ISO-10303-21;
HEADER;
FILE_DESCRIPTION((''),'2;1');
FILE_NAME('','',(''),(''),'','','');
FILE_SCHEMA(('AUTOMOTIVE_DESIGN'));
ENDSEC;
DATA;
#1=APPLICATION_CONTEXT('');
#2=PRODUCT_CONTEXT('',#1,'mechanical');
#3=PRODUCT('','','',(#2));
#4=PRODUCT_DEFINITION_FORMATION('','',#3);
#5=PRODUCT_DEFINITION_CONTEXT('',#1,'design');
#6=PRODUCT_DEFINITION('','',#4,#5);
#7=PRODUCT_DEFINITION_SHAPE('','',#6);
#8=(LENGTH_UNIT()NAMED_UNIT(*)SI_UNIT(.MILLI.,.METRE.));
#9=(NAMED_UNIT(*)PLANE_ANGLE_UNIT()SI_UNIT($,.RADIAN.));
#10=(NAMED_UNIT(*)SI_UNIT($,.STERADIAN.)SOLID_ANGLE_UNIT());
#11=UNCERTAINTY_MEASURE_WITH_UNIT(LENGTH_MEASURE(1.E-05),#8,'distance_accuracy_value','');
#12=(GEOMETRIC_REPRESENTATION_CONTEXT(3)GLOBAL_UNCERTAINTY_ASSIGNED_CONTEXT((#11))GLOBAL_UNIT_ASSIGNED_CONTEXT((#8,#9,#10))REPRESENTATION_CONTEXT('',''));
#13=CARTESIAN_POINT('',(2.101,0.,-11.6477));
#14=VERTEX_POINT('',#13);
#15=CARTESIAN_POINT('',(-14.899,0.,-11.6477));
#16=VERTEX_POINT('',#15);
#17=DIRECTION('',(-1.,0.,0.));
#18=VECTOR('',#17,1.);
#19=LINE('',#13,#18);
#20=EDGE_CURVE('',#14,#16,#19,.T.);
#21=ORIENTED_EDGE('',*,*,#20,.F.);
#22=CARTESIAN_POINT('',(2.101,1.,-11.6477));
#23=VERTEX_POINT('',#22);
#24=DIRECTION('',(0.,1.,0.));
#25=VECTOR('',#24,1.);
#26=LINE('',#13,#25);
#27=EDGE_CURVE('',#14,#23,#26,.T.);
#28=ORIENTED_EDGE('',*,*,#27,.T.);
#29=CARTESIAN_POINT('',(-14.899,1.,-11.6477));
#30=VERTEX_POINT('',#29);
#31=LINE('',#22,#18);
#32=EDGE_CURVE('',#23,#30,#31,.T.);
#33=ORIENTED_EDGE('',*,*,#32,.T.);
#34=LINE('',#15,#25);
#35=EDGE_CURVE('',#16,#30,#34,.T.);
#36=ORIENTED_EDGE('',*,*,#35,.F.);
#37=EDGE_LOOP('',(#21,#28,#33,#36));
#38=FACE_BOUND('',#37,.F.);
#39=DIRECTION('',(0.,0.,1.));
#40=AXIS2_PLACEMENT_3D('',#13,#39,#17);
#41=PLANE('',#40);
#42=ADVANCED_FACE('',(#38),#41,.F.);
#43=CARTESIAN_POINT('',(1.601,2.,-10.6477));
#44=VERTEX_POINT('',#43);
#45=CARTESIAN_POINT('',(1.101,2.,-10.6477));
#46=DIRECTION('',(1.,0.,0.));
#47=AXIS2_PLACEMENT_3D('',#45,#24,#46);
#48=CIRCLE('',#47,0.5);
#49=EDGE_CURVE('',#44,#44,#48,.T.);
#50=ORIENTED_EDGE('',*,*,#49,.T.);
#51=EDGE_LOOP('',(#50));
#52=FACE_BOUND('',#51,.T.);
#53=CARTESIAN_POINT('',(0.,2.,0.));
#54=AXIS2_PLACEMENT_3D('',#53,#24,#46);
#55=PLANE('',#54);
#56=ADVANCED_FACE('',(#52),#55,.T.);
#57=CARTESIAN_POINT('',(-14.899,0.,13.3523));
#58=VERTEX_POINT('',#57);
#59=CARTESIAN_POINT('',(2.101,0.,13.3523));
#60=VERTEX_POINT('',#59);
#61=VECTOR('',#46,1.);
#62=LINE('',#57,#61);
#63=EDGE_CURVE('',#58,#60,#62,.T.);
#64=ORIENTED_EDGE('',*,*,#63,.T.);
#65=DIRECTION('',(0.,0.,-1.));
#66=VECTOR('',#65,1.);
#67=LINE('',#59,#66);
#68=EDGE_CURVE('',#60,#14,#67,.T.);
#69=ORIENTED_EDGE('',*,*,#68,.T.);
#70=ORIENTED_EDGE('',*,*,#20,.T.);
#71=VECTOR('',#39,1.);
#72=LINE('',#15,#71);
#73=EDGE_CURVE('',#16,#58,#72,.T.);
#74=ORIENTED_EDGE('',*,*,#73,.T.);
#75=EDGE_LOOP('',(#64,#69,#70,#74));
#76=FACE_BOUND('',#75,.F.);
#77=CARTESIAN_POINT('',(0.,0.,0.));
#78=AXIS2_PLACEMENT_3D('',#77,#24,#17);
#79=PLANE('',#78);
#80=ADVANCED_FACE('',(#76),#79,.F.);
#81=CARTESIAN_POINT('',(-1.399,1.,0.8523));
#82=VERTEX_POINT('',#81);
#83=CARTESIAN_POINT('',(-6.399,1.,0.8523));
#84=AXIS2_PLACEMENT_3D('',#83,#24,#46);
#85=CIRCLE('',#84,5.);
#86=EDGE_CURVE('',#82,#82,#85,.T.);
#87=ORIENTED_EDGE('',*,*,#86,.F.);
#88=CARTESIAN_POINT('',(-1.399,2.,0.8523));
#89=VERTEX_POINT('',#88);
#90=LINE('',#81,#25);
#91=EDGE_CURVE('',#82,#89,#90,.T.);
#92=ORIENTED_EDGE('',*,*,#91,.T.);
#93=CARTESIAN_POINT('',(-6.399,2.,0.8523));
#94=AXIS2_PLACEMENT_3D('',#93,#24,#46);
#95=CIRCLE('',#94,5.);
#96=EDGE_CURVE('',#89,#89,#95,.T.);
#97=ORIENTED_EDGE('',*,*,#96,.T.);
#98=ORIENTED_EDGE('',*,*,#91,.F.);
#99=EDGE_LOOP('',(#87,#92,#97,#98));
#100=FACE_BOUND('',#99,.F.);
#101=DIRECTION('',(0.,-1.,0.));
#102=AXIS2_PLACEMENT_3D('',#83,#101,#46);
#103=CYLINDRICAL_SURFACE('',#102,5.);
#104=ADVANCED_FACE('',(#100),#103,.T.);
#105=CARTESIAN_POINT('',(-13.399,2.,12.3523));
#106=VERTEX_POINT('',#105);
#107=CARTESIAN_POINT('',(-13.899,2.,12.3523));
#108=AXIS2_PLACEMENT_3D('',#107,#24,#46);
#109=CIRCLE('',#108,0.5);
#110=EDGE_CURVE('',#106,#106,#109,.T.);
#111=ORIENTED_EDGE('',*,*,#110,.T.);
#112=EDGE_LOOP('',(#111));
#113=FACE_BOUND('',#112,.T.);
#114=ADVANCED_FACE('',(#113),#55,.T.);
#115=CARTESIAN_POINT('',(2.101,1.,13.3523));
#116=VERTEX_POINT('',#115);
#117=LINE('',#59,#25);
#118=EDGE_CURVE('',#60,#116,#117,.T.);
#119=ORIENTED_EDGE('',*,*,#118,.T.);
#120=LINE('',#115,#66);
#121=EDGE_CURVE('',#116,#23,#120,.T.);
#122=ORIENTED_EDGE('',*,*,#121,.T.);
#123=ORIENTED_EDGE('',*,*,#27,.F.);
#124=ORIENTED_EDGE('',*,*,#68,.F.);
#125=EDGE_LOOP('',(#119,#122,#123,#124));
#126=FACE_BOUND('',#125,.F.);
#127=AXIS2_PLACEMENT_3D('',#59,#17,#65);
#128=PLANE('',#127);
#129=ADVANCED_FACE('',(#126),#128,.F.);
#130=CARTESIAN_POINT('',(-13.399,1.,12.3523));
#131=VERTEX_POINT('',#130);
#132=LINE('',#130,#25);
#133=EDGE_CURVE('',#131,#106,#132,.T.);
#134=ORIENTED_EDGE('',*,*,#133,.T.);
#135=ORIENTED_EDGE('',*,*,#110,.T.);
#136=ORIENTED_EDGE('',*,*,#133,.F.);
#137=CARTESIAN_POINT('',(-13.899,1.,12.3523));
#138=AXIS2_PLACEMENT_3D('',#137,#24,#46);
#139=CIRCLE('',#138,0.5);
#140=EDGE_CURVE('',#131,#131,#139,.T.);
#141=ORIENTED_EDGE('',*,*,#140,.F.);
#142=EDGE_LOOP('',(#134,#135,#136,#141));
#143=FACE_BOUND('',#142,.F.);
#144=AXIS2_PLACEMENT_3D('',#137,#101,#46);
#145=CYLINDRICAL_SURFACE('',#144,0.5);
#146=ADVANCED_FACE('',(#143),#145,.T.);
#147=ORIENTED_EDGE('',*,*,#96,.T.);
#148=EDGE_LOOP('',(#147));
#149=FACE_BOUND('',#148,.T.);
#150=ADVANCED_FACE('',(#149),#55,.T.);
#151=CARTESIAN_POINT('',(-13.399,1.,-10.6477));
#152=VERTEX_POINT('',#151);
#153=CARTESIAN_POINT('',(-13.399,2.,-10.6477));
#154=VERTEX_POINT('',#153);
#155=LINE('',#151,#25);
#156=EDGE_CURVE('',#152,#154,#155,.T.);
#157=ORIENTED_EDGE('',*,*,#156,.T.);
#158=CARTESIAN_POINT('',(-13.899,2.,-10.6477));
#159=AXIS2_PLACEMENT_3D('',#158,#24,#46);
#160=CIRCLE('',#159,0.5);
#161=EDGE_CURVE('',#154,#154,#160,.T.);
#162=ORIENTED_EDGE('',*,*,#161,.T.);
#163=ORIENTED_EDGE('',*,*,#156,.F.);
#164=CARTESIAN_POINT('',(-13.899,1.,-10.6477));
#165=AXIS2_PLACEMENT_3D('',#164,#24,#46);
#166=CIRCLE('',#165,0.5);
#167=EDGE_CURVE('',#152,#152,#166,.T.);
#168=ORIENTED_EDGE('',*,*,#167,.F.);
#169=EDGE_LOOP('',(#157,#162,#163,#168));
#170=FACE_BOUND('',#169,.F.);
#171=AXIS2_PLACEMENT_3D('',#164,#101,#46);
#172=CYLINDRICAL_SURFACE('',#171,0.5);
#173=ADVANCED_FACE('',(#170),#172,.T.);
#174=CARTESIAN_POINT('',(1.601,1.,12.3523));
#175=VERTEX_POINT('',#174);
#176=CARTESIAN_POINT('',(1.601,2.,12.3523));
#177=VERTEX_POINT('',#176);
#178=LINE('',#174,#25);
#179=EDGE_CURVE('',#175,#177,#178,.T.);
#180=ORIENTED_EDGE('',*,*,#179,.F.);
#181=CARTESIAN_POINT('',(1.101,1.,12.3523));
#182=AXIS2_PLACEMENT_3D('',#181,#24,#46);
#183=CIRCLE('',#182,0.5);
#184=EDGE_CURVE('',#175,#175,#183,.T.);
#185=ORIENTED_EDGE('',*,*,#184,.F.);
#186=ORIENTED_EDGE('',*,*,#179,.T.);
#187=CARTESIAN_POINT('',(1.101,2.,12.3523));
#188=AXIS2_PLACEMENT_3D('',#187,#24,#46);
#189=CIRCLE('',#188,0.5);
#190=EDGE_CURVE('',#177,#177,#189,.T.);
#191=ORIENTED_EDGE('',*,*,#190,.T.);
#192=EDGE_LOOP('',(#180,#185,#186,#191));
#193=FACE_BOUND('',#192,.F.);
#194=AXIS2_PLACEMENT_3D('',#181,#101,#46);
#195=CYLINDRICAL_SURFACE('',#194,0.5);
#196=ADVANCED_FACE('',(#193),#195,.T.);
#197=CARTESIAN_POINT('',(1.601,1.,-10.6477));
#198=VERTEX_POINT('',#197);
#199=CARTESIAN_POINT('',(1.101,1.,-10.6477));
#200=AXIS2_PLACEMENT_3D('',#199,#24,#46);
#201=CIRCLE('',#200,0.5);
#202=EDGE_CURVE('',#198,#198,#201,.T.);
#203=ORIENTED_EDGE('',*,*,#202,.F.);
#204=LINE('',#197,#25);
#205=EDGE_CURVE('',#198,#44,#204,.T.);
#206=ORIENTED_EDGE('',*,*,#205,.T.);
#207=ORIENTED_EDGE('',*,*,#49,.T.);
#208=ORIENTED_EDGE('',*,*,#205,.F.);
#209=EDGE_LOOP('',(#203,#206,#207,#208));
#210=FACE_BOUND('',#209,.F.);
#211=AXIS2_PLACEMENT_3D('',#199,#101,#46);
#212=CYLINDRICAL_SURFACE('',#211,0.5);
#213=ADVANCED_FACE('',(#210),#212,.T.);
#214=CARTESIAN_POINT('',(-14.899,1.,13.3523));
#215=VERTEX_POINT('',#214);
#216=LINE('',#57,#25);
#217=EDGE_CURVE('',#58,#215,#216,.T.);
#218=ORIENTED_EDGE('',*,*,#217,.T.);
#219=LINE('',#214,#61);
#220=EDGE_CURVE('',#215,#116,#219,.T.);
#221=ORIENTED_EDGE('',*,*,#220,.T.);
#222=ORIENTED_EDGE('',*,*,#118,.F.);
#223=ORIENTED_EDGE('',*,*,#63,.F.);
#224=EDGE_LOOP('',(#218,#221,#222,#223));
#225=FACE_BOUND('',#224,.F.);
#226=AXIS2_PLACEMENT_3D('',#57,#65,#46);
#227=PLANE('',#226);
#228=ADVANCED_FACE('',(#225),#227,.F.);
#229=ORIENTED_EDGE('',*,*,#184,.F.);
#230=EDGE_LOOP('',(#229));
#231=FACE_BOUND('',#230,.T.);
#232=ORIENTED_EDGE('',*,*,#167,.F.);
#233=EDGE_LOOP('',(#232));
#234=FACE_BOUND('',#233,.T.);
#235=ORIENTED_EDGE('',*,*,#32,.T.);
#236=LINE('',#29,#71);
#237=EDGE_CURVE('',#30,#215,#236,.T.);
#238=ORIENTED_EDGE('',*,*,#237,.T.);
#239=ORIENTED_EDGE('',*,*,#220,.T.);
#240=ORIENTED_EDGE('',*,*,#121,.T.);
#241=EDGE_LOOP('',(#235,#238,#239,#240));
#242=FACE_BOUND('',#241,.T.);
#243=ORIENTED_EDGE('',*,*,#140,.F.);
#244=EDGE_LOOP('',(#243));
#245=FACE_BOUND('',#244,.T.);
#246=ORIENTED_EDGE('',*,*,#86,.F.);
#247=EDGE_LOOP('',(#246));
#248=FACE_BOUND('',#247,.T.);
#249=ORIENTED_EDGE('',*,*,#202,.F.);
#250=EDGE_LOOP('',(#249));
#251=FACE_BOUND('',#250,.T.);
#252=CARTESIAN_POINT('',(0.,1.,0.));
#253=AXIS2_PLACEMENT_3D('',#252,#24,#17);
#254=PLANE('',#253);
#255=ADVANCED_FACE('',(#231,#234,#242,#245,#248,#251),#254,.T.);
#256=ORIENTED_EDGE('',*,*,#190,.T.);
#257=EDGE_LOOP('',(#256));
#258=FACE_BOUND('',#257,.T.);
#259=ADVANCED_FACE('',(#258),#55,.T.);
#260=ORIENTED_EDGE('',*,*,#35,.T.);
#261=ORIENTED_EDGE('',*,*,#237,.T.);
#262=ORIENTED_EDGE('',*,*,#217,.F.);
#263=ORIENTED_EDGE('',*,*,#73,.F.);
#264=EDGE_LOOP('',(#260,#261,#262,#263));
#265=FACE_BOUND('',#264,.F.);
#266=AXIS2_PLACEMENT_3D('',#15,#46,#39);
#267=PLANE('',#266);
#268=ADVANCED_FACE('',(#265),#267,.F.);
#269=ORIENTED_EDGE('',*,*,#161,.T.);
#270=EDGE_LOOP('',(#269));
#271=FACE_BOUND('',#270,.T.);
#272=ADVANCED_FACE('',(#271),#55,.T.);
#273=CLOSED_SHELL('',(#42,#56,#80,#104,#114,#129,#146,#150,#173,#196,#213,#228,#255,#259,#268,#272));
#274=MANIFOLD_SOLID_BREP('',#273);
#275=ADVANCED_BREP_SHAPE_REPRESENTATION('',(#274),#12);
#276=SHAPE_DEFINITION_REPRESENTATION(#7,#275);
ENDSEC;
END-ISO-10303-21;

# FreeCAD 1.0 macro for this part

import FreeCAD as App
import Part
import Sketcher


def add_polygon(sketch, points):
    """Adds a closed chain of lines whose ends are joined by coincident constraints."""
    first, n = sketch.GeometryCount, len(points)
    for a, b in zip(points, points[1:] + points[:1]):
        sketch.addGeometry(Part.LineSegment(App.Vector(*a, 0), App.Vector(*b, 0)), False)
    for i in range(n):
        sketch.addConstraint(Sketcher.Constraint("Coincident", first + i, 2, first + (i + 1) % n, 1))

doc = App.newDocument("Part")
body = doc.addObject("PartDesign::Body", "Body")

# Sketch on XZ plane
sketch1 = body.newObject("Sketcher::SketchObject", "Sketch")
sketch1.AttachmentSupport = (doc.getObject("XZ_Plane"), [""])
sketch1.MapMode = "FlatFace"
add_polygon(sketch1, [(-15, -12), (-15, 13), (2, 13), (2, -12)])  # lines 0-3
sketch1.addConstraint(Sketcher.Constraint("Vertical", 0))
sketch1.addConstraint(Sketcher.Constraint("Horizontal", 1))
sketch1.addConstraint(Sketcher.Constraint("Vertical", 2))
sketch1.addConstraint(Sketcher.Constraint("Horizontal", 3))
sketch1.addConstraint(Sketcher.Constraint("DistanceX", 1, 1, 1, 2, 17.0))
sketch1.addConstraint(Sketcher.Constraint("DistanceY", 0, 1, 0, 2, 25.0))
sketch1.addConstraint(Sketcher.Constraint("DistanceX", 0, 2, -1, 1, 14.899))
sketch1.addConstraint(Sketcher.Constraint("DistanceY", -1, 1, 0, 2, 13.3523))
pad1 = body.newObject("PartDesign::Pad", "Pad")
pad1.Profile = sketch1
pad1.Length = 1
pad1.Reversed = True

# Sketch on XZ plane
sketch2 = body.newObject("Sketcher::SketchObject", "Sketch001")
sketch2.AttachmentSupport = (doc.getObject("XZ_Plane"), [""])
sketch2.MapMode = "FlatFace"
sketch2.AttachmentOffset = App.Placement(App.Vector(0, 0, -1), App.Rotation())
sketch2.addGeometry(Part.Circle(App.Vector(-13.9, 12.4, 0), App.Vector(0, 0, 1), 0.5), False)
sketch2.addGeometry(Part.Circle(App.Vector(-13.9, -10.6, 0), App.Vector(0, 0, 1), 0.5), False)
sketch2.addGeometry(Part.Circle(App.Vector(1.1, -10.6, 0), App.Vector(0, 0, 1), 0.5), False)
sketch2.addGeometry(Part.Circle(App.Vector(1.1, 12.4, 0), App.Vector(0, 0, 1), 0.5), False)
sketch2.addGeometry(Part.Circle(App.Vector(-6.4, 0.9, 0), App.Vector(0, 0, 1), 5), False)
sketch2.addConstraint(Sketcher.Constraint("Equal", 0, 1))
sketch2.addConstraint(Sketcher.Constraint("Equal", 1, 2))
sketch2.addConstraint(Sketcher.Constraint("Equal", 2, 3))
sketch2.addConstraint(Sketcher.Constraint("Horizontal", 1, 3, 2, 3))
sketch2.addConstraint(Sketcher.Constraint("Horizontal", 0, 3, 3, 3))
sketch2.addConstraint(Sketcher.Constraint("Vertical", 0, 3, 1, 3))
sketch2.addConstraint(Sketcher.Constraint("Vertical", 2, 3, 3, 3))
sketch2.addConstraint(Sketcher.Constraint("Diameter", 0, 1.0))
sketch2.addConstraint(Sketcher.Constraint("Diameter", 4, 10.0))
sketch2.addConstraint(Sketcher.Constraint("DistanceY", 1, 3, 0, 3, 23.0))
sketch2.addConstraint(Sketcher.Constraint("DistanceX", 1, 3, 2, 3, 15.0))
sketch2.addConstraint(Sketcher.Constraint("DistanceX", 0, 3, 4, 3, 7.5))
sketch2.addConstraint(Sketcher.Constraint("DistanceY", 4, 3, 0, 3, 11.5))
sketch2.addConstraint(Sketcher.Constraint("DistanceX", 0, 3, -1, 1, 13.899))
sketch2.addConstraint(Sketcher.Constraint("DistanceY", -1, 1, 0, 3, 12.3523))
pad2 = body.newObject("PartDesign::Pad", "Pad001")
pad2.Profile = sketch2
pad2.Length = 1
pad2.Reversed = True

doc.recompute()
